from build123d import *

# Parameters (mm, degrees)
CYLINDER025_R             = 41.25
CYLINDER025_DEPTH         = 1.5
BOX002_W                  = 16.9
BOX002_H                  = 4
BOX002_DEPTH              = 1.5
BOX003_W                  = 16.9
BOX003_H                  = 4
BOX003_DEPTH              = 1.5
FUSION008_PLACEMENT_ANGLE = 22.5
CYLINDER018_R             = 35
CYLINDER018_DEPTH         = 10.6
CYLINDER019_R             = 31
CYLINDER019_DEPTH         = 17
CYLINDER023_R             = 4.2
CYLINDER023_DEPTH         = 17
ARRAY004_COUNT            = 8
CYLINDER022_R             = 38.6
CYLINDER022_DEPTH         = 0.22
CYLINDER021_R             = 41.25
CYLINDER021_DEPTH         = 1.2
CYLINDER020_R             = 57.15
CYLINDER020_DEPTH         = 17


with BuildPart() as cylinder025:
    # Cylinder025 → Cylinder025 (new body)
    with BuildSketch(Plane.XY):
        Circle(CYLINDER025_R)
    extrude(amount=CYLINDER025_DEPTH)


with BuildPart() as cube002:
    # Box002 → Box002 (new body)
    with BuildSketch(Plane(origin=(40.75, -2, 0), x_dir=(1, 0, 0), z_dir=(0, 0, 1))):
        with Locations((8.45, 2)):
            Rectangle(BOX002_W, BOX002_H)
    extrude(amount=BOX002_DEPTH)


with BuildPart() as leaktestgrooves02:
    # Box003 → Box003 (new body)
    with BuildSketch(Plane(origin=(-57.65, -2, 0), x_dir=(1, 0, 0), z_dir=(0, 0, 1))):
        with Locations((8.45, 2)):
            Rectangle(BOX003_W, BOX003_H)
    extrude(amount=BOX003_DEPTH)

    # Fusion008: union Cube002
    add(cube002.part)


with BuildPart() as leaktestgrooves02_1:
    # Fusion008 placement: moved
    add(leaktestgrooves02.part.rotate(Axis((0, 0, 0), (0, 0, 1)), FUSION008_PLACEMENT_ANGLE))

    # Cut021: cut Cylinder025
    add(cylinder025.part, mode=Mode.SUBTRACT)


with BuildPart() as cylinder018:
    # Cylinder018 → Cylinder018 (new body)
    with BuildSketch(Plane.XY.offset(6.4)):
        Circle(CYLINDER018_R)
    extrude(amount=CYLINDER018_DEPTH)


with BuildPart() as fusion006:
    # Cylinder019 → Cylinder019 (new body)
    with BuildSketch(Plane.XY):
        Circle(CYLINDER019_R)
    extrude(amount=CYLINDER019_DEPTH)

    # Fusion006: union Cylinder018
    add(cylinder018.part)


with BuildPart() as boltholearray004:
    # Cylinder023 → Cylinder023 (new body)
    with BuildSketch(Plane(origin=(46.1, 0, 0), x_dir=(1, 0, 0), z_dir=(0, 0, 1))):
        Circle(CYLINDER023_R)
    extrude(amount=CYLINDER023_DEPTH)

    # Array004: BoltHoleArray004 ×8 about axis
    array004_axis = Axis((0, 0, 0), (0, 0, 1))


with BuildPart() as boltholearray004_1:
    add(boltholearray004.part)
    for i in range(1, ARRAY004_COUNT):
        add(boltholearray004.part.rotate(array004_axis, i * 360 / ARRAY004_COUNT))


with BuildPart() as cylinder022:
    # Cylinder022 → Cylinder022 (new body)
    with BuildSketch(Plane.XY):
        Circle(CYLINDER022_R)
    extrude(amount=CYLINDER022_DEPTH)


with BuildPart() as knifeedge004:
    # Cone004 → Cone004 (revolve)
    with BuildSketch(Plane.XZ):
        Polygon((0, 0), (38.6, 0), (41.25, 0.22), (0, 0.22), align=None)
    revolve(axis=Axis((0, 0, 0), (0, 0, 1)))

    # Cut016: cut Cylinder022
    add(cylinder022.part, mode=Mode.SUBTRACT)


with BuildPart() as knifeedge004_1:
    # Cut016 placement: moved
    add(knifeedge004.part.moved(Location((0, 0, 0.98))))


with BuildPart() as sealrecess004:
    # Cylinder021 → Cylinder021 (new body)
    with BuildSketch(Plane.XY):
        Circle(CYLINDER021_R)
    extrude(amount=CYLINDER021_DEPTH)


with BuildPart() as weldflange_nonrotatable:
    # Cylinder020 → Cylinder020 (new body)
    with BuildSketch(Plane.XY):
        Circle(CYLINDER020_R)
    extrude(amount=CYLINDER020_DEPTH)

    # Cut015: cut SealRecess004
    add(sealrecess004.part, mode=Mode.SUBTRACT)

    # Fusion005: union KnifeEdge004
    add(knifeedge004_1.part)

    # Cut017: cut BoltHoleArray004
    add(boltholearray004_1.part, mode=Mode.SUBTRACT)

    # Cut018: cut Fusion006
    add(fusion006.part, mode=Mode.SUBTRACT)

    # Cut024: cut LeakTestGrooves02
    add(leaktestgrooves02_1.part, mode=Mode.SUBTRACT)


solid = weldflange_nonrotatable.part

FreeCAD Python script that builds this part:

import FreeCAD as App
import Part
import Sketcher

V = App.Vector

doc = App.newDocument("Part")
body = doc.addObject("PartDesign::Body", "Body")

# Sketch on XY plane
sketch1 = body.newObject("Sketcher::SketchObject", "Sketch")
sketch1.AttachmentSupport = (doc.getObject("XY_Plane"), [""])
sketch1.MapMode = "FlatFace"
sketch1.addGeometry(Part.Circle(V(0, 0, 0), V(0, 0, 1), 41), False)
sketch1.addConstraint([
    Sketcher.Constraint("Coincident", 0, 3, -1, 1),
    Sketcher.Constraint("Diameter", 0, 82.5),
])
pad1 = body.newObject("PartDesign::Pad", "Pad")
pad1.Profile = sketch1
pad1.Length = 1.5
body2 = doc.addObject("PartDesign::Body", "Body001")

# Sketch on XY plane
sketch2 = body2.newObject("Sketcher::SketchObject", "Sketch001")
sketch2.AttachmentSupport = (doc.getObject("XY_Plane001"), [""])
sketch2.MapMode = "FlatFace"
sketch2.addGeometry([
    Part.LineSegment(V(40.8, 2, 0), V(40.8, -2, 0)),
    Part.LineSegment(V(40.8, -2, 0), V(57.6, -2, 0)),
    Part.LineSegment(V(57.6, -2, 0), V(57.6, 2, 0)),
    Part.LineSegment(V(57.6, 2, 0), V(40.8, 2, 0)),
], False)
sketch2.addConstraint([
    Sketcher.Constraint("Coincident", 0, 2, 1, 1),
    Sketcher.Constraint("Coincident", 1, 2, 2, 1),
    Sketcher.Constraint("Coincident", 2, 2, 3, 1),
    Sketcher.Constraint("Coincident", 3, 2, 0, 1),
    Sketcher.Constraint("Vertical", 0),
    Sketcher.Constraint("Horizontal", 1),
    Sketcher.Constraint("Vertical", 2),
    Sketcher.Constraint("Horizontal", 3),
    Sketcher.Constraint("DistanceY", 0, 2, 0, 1, 4.0),
    Sketcher.Constraint("DistanceX", 1, 1, 1, 2, 16.9),
    Sketcher.Constraint("DistanceY", 0, 2, -1, 1, 2.0),
    Sketcher.Constraint("DistanceX", -1, 1, 0, 2, 40.75),
])
pad2 = body2.newObject("PartDesign::Pad", "Pad001")
pad2.Profile = sketch2
pad2.Length = 1.5
body3 = doc.addObject("PartDesign::Body", "Body002")
body3.AllowCompound = True

# Sketch on XY plane
sketch3 = body3.newObject("Sketcher::SketchObject", "Sketch002")
sketch3.AttachmentSupport = (doc.getObject("XY_Plane002"), [""])
sketch3.MapMode = "FlatFace"
sketch3.addGeometry([
    Part.LineSegment(V(-57.6, 2, 0), V(-57.6, -2, 0)),
    Part.LineSegment(V(-57.6, -2, 0), V(-40.8, -2, 0)),
    Part.LineSegment(V(-40.8, -2, 0), V(-40.8, 2, 0)),
    Part.LineSegment(V(-40.8, 2, 0), V(-57.6, 2, 0)),
], False)
sketch3.addConstraint([
    Sketcher.Constraint("Coincident", 0, 2, 1, 1),
    Sketcher.Constraint("Coincident", 1, 2, 2, 1),
    Sketcher.Constraint("Coincident", 2, 2, 3, 1),
    Sketcher.Constraint("Coincident", 3, 2, 0, 1),
    Sketcher.Constraint("Vertical", 0),
    Sketcher.Constraint("Horizontal", 1),
    Sketcher.Constraint("Vertical", 2),
    Sketcher.Constraint("Horizontal", 3),
    Sketcher.Constraint("DistanceY", 0, 2, 0, 1, 4.0),
    Sketcher.Constraint("DistanceX", 1, 1, 1, 2, 16.9),
    Sketcher.Constraint("DistanceY", 0, 2, -1, 1, 2.0),
    Sketcher.Constraint("DistanceX", 0, 2, -1, 1, 57.65),
])
pad3 = body3.newObject("PartDesign::Pad", "Pad002")
pad3.Profile = sketch3
pad3.Length = 1.5
doc.recompute()

boolean = body3.newObject("PartDesign::Boolean", "Boolean")
boolean.Type = "Fuse"
boolean.addObjects([body2])
body4 = doc.addObject("PartDesign::Body", "Body003")
body4.AllowCompound = True
doc.recompute()

body3.Placement = App.Placement(V(0, 0, 0), App.Rotation(V(0, 0, 1), 22.5))
boolean2 = body4.newObject("PartDesign::Boolean", "Boolean001")
boolean2.Type = "Fuse"
boolean2.addObjects([body3])
doc.recompute()

boolean3 = body4.newObject("PartDesign::Boolean", "Boolean002")
boolean3.Type = "Cut"
boolean3.addObjects([body])
body5 = doc.addObject("PartDesign::Body", "Body004")

# Sketch on XY plane
sketch4 = body5.newObject("Sketcher::SketchObject", "Sketch003")
sketch4.AttachmentSupport = (doc.getObject("XY_Plane004"), [""])
sketch4.MapMode = "FlatFace"
sketch4.AttachmentOffset = App.Placement(V(0, 0, 6.4), App.Rotation())
sketch4.addGeometry(Part.Circle(V(0, 0, 0), V(0, 0, 1), 35), False)
sketch4.addConstraint([
    Sketcher.Constraint("Coincident", 0, 3, -1, 1),
    Sketcher.Constraint("Diameter", 0, 70.0),
])
pad4 = body5.newObject("PartDesign::Pad", "Pad003")
pad4.Profile = sketch4
pad4.Length = 10.6
body6 = doc.addObject("PartDesign::Body", "Body005")

# Sketch on XY plane
sketch5 = body6.newObject("Sketcher::SketchObject", "Sketch004")
sketch5.AttachmentSupport = (doc.getObject("XY_Plane005"), [""])
sketch5.MapMode = "FlatFace"
sketch5.addGeometry(Part.Circle(V(0, 0, 0), V(0, 0, 1), 31), False)
sketch5.addConstraint([
    Sketcher.Constraint("Coincident", 0, 3, -1, 1),
    Sketcher.Constraint("Diameter", 0, 62.0),
])
pad5 = body6.newObject("PartDesign::Pad", "Pad004")
pad5.Profile = sketch5
pad5.Length = 17
doc.recompute()

boolean4 = body6.newObject("PartDesign::Boolean", "Boolean003")
boolean4.Type = "Fuse"
boolean4.addObjects([body5])
body7 = doc.addObject("PartDesign::Body", "Body006")

# Sketch on XY plane
sketch6 = body7.newObject("Sketcher::SketchObject", "Sketch005")
sketch6.AttachmentSupport = (doc.getObject("XY_Plane006"), [""])
sketch6.MapMode = "FlatFace"
sketch6.addGeometry(Part.Circle(V(46.1, 0, 0), V(0, 0, 1), 4.2), False)
sketch6.addConstraint([
    Sketcher.Constraint("PointOnObject", 0, 3, -1),
    Sketcher.Constraint("Diameter", 0, 8.4),
    Sketcher.Constraint("DistanceX", -1, 1, 0, 3, 46.1),
])
pad6 = body7.newObject("PartDesign::Pad", "Pad005")
pad6.Profile = sketch6
pad6.Length = 17
body8 = doc.addObject("PartDesign::Body", "Body007")
body8.AllowCompound = True
doc.recompute()

body8.BaseFeature = body7
doc.recompute()

body9 = doc.addObject("PartDesign::Body", "Body008")
body9.BaseFeature = body7
body9.Placement = App.Placement(V(0, 0, 0), App.Rotation(V(0, 0, 1), 45))
boolean5 = body8.newObject("PartDesign::Boolean", "Boolean004")
boolean5.Type = "Fuse"
boolean5.addObjects([body9])
doc.recompute()

body10 = doc.addObject("PartDesign::Body", "Body009")
body10.BaseFeature = body7
body10.Placement = App.Placement(V(0, 0, 0), App.Rotation(V(0, 0, 1), 90))
boolean6 = body8.newObject("PartDesign::Boolean", "Boolean005")
boolean6.Type = "Fuse"
boolean6.addObjects([body10])
doc.recompute()

body11 = doc.addObject("PartDesign::Body", "Body010")
body11.BaseFeature = body7
body11.Placement = App.Placement(V(0, 0, 0), App.Rotation(V(0, 0, 1), 135))
boolean7 = body8.newObject("PartDesign::Boolean", "Boolean006")
boolean7.Type = "Fuse"
boolean7.addObjects([body11])
doc.recompute()

body12 = doc.addObject("PartDesign::Body", "Body011")
body12.BaseFeature = body7
body12.Placement = App.Placement(V(0, 0, 0), App.Rotation(V(0, 0, 1), 180))
boolean8 = body8.newObject("PartDesign::Boolean", "Boolean007")
boolean8.Type = "Fuse"
boolean8.addObjects([body12])
doc.recompute()

body13 = doc.addObject("PartDesign::Body", "Body012")
body13.BaseFeature = body7
body13.Placement = App.Placement(V(0, 0, 0), App.Rotation(V(0, 0, 1), 225))
boolean9 = body8.newObject("PartDesign::Boolean", "Boolean008")
boolean9.Type = "Fuse"
boolean9.addObjects([body13])
doc.recompute()

body14 = doc.addObject("PartDesign::Body", "Body013")
body14.BaseFeature = body7
body14.Placement = App.Placement(V(0, 0, 0), App.Rotation(V(0, 0, 1), 270))
boolean10 = body8.newObject("PartDesign::Boolean", "Boolean009")
boolean10.Type = "Fuse"
boolean10.addObjects([body14])
doc.recompute()

body7.Placement = App.Placement(V(0, 0, 0), App.Rotation(V(0, 0, 1), 315))
boolean11 = body8.newObject("PartDesign::Boolean", "Boolean010")
boolean11.Type = "Fuse"
boolean11.addObjects([body7])
body15 = doc.addObject("PartDesign::Body", "Body014")

# Sketch on XY plane
sketch7 = body15.newObject("Sketcher::SketchObject", "Sketch006")
sketch7.AttachmentSupport = (doc.getObject("XY_Plane014"), [""])
sketch7.MapMode = "FlatFace"
sketch7.addGeometry(Part.Circle(V(0, 0, 0), V(0, 0, 1), 39), False)
sketch7.addConstraint([
    Sketcher.Constraint("Coincident", 0, 3, -1, 1),
    Sketcher.Constraint("Diameter", 0, 77.2),
])
pad7 = body15.newObject("PartDesign::Pad", "Pad006")
pad7.Profile = sketch7
pad7.Length = 0.22
body16 = doc.addObject("PartDesign::Body", "Body015")

# Sketch on XZ plane
sketch8 = body16.newObject("Sketcher::SketchObject", "Sketch007")
sketch8.AttachmentSupport = (doc.getObject("XZ_Plane015"), [""])
sketch8.MapMode = "FlatFace"
sketch8.addGeometry([
    Part.LineSegment(V(0, 0, 0), V(38.6, 0, 0)),
    Part.LineSegment(V(38.6, 0, 0), V(41.25, 0.22, 0)),
    Part.LineSegment(V(41.25, 0.22, 0), V(0, 0.22, 0)),
    Part.LineSegment(V(0, 0.22, 0), V(0, 0, 0)),
], False)
sketch8.addConstraint([
    Sketcher.Constraint("Coincident", 0, 2, 1, 1),
    Sketcher.Constraint("Coincident", 1, 2, 2, 1),
    Sketcher.Constraint("Coincident", 2, 2, 3, 1),
    Sketcher.Constraint("Coincident", 3, 2, 0, 1),
    Sketcher.Constraint("Horizontal", 0),
    Sketcher.Constraint("Horizontal", 2),
    Sketcher.Constraint("Vertical", 3),
    Sketcher.Constraint("Coincident", 3, 2, -1, 1),
    Sketcher.Constraint("DistanceX", 0, 1, 0, 2, 38.6),
    Sketcher.Constraint("DistanceX", 2, 2, 2, 1, 41.25),
    Sketcher.Constraint("DistanceY", 3, 2, 3, 1, 0.22),
])
revolution = body16.newObject("PartDesign::Revolution", "Revolution")
revolution.Profile = sketch8
revolution.ReferenceAxis = (sketch8, ["V_Axis"])
revolution.Angle = 360
doc.recompute()

boolean12 = body16.newObject("PartDesign::Boolean", "Boolean011")
boolean12.Type = "Cut"
boolean12.addObjects([body15])
body17 = doc.addObject("PartDesign::Body", "Body016")
doc.recompute()

body16.Placement = App.Placement(V(0, 0, 0.98), App.Rotation(V(0, 0, 1), 0))
boolean13 = body17.newObject("PartDesign::Boolean", "Boolean012")
boolean13.Type = "Fuse"
boolean13.addObjects([body16])
body18 = doc.addObject("PartDesign::Body", "Body017")

# Sketch on XY plane
sketch9 = body18.newObject("Sketcher::SketchObject", "Sketch008")
sketch9.AttachmentSupport = (doc.getObject("XY_Plane017"), [""])
sketch9.MapMode = "FlatFace"
sketch9.addGeometry(Part.Circle(V(0, 0, 0), V(0, 0, 1), 41), False)
sketch9.addConstraint([
    Sketcher.Constraint("Coincident", 0, 3, -1, 1),
    Sketcher.Constraint("Diameter", 0, 82.5),
])
pad8 = body18.newObject("PartDesign::Pad", "Pad007")
pad8.Profile = sketch9
pad8.Length = 1.2
body19 = doc.addObject("PartDesign::Body", "Body018")

# Sketch on XY plane
sketch10 = body19.newObject("Sketcher::SketchObject", "Sketch009")
sketch10.AttachmentSupport = (doc.getObject("XY_Plane018"), [""])
sketch10.MapMode = "FlatFace"
sketch10.addGeometry(Part.Circle(V(0, 0, 0), V(0, 0, 1), 57), False)
sketch10.addConstraint([
    Sketcher.Constraint("Coincident", 0, 3, -1, 1),
    Sketcher.Constraint("Diameter", 0, 114.3),
])
pad9 = body19.newObject("PartDesign::Pad", "Pad008")
pad9.Profile = sketch10
pad9.Length = 17
doc.recompute()

boolean14 = body19.newObject("PartDesign::Boolean", "Boolean013")
boolean14.Type = "Cut"
boolean14.addObjects([body18])
doc.recompute()

boolean15 = body19.newObject("PartDesign::Boolean", "Boolean014")
boolean15.Type = "Fuse"
boolean15.addObjects([body17])
doc.recompute()

boolean16 = body19.newObject("PartDesign::Boolean", "Boolean015")
boolean16.Type = "Cut"
boolean16.addObjects([body8])
doc.recompute()

boolean17 = body19.newObject("PartDesign::Boolean", "Boolean016")
boolean17.Type = "Cut"
boolean17.addObjects([body6])
doc.recompute()

boolean18 = body19.newObject("PartDesign::Boolean", "Boolean017")
boolean18.Type = "Cut"
boolean18.addObjects([body4])

doc.recompute()
